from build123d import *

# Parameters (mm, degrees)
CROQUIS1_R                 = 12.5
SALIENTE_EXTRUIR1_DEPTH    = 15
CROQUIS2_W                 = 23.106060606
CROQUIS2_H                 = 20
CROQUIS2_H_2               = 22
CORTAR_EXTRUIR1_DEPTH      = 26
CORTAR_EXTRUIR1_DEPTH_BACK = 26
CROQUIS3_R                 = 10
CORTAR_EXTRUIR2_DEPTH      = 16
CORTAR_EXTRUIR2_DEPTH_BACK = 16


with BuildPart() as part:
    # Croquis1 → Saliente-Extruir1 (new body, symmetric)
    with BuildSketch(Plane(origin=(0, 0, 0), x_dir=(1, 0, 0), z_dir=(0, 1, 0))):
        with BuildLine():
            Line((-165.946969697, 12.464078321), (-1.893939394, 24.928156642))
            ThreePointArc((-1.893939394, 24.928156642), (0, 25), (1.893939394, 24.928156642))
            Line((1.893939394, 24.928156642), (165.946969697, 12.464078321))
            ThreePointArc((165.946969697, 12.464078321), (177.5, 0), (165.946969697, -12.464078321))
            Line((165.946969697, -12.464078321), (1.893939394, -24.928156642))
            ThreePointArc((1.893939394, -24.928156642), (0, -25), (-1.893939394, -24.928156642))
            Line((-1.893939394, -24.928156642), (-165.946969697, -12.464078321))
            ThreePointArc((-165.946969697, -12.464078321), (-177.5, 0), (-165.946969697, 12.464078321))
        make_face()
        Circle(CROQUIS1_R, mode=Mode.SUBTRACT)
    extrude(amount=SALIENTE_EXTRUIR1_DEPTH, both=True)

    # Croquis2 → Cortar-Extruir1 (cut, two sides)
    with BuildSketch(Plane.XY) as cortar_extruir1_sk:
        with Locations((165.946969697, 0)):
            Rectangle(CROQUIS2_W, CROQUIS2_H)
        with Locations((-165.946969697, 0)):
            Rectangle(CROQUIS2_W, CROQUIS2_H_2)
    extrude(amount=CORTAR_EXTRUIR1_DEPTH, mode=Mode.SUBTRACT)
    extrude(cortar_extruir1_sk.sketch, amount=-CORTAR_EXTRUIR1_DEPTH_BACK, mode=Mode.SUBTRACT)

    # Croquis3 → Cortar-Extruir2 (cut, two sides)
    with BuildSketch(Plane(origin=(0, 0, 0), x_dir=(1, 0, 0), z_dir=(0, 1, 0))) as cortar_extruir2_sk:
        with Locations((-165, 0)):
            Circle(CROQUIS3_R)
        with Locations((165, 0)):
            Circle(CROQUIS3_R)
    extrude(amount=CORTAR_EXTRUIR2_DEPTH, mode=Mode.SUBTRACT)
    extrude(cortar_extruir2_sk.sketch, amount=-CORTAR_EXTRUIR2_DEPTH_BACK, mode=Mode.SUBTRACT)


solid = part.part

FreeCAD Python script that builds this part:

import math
import FreeCAD as App
import Part
import Sketcher
Q = App.Units.Quantity


def add_polygon(sketch, points):
    """Adds a closed chain of lines whose ends are joined by coincident constraints."""
    first, n = sketch.GeometryCount, len(points)
    for a, b in zip(points, points[1:] + points[:1]):
        sketch.addGeometry(Part.LineSegment(App.Vector(*a, 0), App.Vector(*b, 0)), False)
    for i in range(n):
        sketch.addConstraint(Sketcher.Constraint("Coincident", first + i, 2, first + (i + 1) % n, 1))

doc = App.newDocument("Part")
params = doc.addObject("Spreadsheet::Sheet", "Params")
for row, (alias, value) in enumerate([
    ("sketch1_diameter", "25 mm"),
    ("sketch1_radius", "25 mm"),
    ("pad1_length", "30 mm"),
    ("sketch2_height", "20 mm"),
    ("sketch2_height2", "22 mm"),
    ("sketch3_diameter", "20 mm"),
], start=1):
    params.set(f"A{row}", alias)
    params.set(f"B{row}", "=" + value)
    params.setAlias(f"B{row}", alias)

body = doc.addObject("PartDesign::Body", "Body")

sketch1 = body.newObject("Sketcher::SketchObject", "Sketch")
sketch1.AttachmentSupport = (doc.getObject("XZ_Plane"), [""])
sketch1.MapMode = "FlatFace"
sketch1.addGeometry([
    Part.LineSegment(App.Vector(-1.893939, -24.928157, 0), App.Vector(-165.94697, -12.464078, 0)),
    Part.ArcOfCircle(Part.Circle(App.Vector(-165, 0, 0), App.Vector(0, 0, 1), 12.5), math.radians(94.344752), math.radians(265.655248)),
    Part.LineSegment(App.Vector(-165.94697, 12.464078, 0), App.Vector(-1.893939, 24.928157, 0)),
    Part.ArcOfCircle(Part.Circle(App.Vector(0, 0, 0), App.Vector(0, 0, 1), 25), math.radians(85.655248), math.radians(94.344752)),
    Part.LineSegment(App.Vector(1.893939, 24.928157, 0), App.Vector(165.94697, 12.464078, 0)),
    Part.ArcOfCircle(Part.Circle(App.Vector(165, 0, 0), App.Vector(0, 0, 1), 12.5), math.radians(-85.655248), math.radians(85.655248)),
    Part.LineSegment(App.Vector(165.94697, -12.464078, 0), App.Vector(1.893939, -24.928157, 0)),
    Part.ArcOfCircle(Part.Circle(App.Vector(0, 0, 0), App.Vector(0, 0, 1), 25), math.radians(-94.344752), math.radians(-85.655248)),
    Part.Circle(App.Vector(0, 0, 0), App.Vector(0, 0, 1), 12.5),
], False)
sketch1.addConstraint([
    Sketcher.Constraint("Tangent", 0, 2, 1, 2),
    Sketcher.Constraint("Tangent", 1, 1, 2, 1),
    Sketcher.Constraint("Tangent", 2, 2, 3, 2),
    Sketcher.Constraint("Tangent", 3, 1, 4, 1),
    Sketcher.Constraint("Tangent", 4, 2, 5, 2),
    Sketcher.Constraint("Tangent", 5, 1, 6, 1),
    Sketcher.Constraint("Tangent", 6, 2, 7, 2),
    Sketcher.Constraint("Tangent", 7, 1, 0, 1),
    Sketcher.Constraint("Coincident", 3, 3, -1, 1),
    Sketcher.Constraint("Coincident", 7, 3, -1, 1),
    Sketcher.Constraint("Coincident", 8, 3, -1, 1),
    Sketcher.Constraint("Equal", 1, 5),
    Sketcher.Constraint("Equal", 3, 7),
    Sketcher.Constraint("Equal", 5, 8),
    Sketcher.Constraint("Symmetric", 1, 3, 5, 3, -1, 1),
    Sketcher.Constraint("PointOnObject", 1, 3, -1),
    Sketcher.Constraint("Diameter", 8, Q("25 mm")),
    Sketcher.Constraint("Radius", 3, Q("25 mm")),
    Sketcher.Constraint("DistanceX", 1, 3, -1, 1, Q("165 mm")),
])
sketch1.setExpression("Constraints[16]", "Params.sketch1_diameter")
sketch1.setExpression("Constraints[17]", "Params.sketch1_radius")
pad1 = body.newObject("PartDesign::Pad", "Pad")
pad1.Profile = sketch1
pad1.setExpression("Length", "Params.pad1_length")
pad1.Midplane = True

sketch2 = body.newObject("Sketcher::SketchObject", "Sketch001")
sketch2.AttachmentSupport = (doc.getObject("XY_Plane"), [""])
sketch2.MapMode = "FlatFace"
add_polygon(sketch2, [(154.393939, 10), (154.393939, -10), (177.5, -10), (177.5, 10)])
add_polygon(sketch2, [(-177.5, 11), (-177.5, -11), (-154.393939, -11), (-154.393939, 11)])
sketch2.addConstraint([
    Sketcher.Constraint("Vertical", 0),
    Sketcher.Constraint("Horizontal", 1),
    Sketcher.Constraint("Vertical", 2),
    Sketcher.Constraint("Horizontal", 3),
    Sketcher.Constraint("Vertical", 4),
    Sketcher.Constraint("Horizontal", 5),
    Sketcher.Constraint("Vertical", 6),
    Sketcher.Constraint("Horizontal", 7),
    Sketcher.Constraint("Equal", 3, 5),
    Sketcher.Constraint("DistanceY", 0, 2, 0, 1, Q("20 mm")),
    Sketcher.Constraint("DistanceY", 4, 2, 4, 1, Q("22 mm")),
    Sketcher.Constraint("DistanceY", 0, 2, -1, 1, Q("10 mm")),
    Sketcher.Constraint("DistanceY", 4, 2, -1, 1, Q("11 mm")),
    Sketcher.Constraint("DistanceX", 4, 2, 1, 2, Q("355 mm")),
    Sketcher.Constraint("DistanceX", -1, 1, 1, 2, Q("177.5 mm")),
    Sketcher.Constraint("DistanceX", 1, 1, 1, 2, Q("23.106061 mm")),
])
sketch2.setExpression("Constraints[17]", "Params.sketch2_height")
sketch2.setExpression("Constraints[18]", "Params.sketch2_height2")
pocket1 = body.newObject("PartDesign::Pocket", "Pocket")
pocket1.Profile = sketch2
pocket1.Type = "ThroughAll"
pocket1.Midplane = True

sketch3 = body.newObject("Sketcher::SketchObject", "Sketch002")
sketch3.AttachmentSupport = (doc.getObject("XZ_Plane"), [""])
sketch3.MapMode = "FlatFace"
sketch3.addGeometry([
    Part.Circle(App.Vector(-165, 0, 0), App.Vector(0, 0, 1), 10),
    Part.Circle(App.Vector(165, 0, 0), App.Vector(0, 0, 1), 10),
], False)
sketch3.addConstraint([
    Sketcher.Constraint("Equal", 0, 1),
    Sketcher.Constraint("Symmetric", 0, 3, 1, 3, -1, 1),
    Sketcher.Constraint("PointOnObject", 0, 3, -1),
    Sketcher.Constraint("Diameter", 0, Q("20 mm")),
    Sketcher.Constraint("DistanceX", 0, 3, -1, 1, Q("165 mm")),
])
sketch3.setExpression("Constraints[3]", "Params.sketch3_diameter")
pocket2 = body.newObject("PartDesign::Pocket", "Pocket001")
pocket2.Profile = sketch3
pocket2.Type = "ThroughAll"
pocket2.Midplane = True

doc.recompute()
